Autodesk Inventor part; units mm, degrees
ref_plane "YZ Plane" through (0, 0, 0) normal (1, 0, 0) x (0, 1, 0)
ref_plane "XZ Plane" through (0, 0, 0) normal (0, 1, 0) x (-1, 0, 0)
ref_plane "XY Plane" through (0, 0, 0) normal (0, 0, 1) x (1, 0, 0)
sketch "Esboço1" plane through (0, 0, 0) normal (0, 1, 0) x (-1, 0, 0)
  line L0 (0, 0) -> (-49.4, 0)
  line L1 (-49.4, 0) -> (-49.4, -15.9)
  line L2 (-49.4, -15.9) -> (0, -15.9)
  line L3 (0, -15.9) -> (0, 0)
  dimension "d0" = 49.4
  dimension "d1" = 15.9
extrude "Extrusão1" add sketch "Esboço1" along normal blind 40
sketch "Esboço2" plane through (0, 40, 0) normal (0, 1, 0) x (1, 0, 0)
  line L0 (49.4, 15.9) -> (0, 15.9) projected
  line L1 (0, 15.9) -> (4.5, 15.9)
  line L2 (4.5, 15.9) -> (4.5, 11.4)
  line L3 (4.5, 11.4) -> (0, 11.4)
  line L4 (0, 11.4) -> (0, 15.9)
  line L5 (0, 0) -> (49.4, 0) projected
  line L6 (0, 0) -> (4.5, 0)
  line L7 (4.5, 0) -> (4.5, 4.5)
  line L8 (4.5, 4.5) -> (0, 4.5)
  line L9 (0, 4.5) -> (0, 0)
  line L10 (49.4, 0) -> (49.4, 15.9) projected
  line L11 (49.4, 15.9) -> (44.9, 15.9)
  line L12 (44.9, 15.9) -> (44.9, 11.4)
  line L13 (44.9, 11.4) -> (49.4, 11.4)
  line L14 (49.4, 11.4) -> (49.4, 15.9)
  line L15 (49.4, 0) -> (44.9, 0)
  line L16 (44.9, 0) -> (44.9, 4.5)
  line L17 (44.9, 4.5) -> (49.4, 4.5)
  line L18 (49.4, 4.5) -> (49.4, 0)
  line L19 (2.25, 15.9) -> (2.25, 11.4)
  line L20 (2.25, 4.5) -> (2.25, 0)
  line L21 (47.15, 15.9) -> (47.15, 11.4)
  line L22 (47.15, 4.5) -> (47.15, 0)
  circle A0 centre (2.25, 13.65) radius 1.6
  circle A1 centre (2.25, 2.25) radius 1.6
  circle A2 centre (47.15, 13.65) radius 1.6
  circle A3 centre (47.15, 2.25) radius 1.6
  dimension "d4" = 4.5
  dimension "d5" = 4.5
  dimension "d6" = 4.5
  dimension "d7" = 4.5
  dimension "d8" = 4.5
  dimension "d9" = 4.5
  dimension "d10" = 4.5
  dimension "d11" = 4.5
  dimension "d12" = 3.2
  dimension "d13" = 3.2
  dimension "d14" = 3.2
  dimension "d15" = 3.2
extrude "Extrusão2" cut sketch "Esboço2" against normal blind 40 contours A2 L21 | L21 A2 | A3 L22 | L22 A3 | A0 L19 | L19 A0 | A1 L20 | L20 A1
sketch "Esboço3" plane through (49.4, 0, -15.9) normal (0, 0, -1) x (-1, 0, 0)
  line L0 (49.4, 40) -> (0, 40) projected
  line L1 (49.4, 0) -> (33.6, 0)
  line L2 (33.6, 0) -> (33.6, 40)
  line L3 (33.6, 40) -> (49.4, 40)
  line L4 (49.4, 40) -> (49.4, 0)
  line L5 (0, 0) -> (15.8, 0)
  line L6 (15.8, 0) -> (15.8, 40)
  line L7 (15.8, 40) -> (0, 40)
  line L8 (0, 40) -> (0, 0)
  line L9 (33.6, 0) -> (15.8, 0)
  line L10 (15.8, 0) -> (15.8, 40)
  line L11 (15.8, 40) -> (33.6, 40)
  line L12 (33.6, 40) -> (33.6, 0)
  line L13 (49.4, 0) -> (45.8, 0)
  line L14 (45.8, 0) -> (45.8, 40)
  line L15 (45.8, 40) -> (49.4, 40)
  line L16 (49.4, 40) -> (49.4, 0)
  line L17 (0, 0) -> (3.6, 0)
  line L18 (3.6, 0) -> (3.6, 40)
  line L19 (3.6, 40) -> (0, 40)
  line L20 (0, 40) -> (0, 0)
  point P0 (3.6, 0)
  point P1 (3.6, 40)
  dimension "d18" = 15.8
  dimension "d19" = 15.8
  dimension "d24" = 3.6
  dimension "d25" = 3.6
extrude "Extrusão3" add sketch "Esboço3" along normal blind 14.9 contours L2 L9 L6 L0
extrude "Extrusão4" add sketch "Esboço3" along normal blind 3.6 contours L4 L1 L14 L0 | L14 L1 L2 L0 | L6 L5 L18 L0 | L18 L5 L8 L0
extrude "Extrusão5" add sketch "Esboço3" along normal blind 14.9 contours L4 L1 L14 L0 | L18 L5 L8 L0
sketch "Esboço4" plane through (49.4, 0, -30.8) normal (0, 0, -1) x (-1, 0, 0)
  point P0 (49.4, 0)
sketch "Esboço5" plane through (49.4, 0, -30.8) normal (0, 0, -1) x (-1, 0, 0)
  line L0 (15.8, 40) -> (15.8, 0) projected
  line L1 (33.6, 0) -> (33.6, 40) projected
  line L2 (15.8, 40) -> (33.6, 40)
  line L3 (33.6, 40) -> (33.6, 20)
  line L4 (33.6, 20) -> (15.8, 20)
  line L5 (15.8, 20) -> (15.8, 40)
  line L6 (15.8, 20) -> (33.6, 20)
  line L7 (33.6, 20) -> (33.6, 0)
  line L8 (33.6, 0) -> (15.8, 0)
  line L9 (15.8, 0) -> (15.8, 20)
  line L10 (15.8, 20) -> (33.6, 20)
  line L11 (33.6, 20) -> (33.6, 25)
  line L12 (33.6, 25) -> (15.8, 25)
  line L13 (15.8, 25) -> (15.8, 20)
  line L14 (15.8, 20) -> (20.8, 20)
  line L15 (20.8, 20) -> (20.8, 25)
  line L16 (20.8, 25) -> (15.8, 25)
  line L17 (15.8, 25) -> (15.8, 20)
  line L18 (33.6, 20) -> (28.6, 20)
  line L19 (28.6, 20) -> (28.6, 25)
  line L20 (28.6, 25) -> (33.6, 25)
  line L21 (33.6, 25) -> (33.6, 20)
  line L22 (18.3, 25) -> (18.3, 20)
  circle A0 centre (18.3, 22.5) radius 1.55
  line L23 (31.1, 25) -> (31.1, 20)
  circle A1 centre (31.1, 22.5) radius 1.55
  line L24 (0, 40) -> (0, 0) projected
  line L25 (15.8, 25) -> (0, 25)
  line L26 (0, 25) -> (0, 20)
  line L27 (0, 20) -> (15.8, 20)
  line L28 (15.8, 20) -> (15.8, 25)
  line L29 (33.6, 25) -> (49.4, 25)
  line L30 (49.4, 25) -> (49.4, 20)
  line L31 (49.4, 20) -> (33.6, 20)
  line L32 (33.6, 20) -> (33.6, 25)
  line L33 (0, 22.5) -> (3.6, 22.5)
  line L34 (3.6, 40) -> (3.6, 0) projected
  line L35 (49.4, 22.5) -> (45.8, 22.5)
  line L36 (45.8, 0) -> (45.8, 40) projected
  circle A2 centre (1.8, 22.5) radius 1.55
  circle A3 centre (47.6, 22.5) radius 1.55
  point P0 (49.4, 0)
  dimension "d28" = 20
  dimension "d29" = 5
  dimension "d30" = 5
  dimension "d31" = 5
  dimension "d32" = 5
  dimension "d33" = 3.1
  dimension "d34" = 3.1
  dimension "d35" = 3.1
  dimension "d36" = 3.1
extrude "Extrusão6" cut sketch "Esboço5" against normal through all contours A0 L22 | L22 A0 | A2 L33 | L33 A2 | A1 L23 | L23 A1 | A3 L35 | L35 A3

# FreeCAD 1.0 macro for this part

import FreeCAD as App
import Part
import Sketcher
Q = App.Units.Quantity


def add_polygon(sketch, points):
    """Adds a closed chain of lines whose ends are joined by coincident constraints."""
    first, n = sketch.GeometryCount, len(points)
    for a, b in zip(points, points[1:] + points[:1]):
        sketch.addGeometry(Part.LineSegment(App.Vector(*a, 0), App.Vector(*b, 0)), False)
    for i in range(n):
        sketch.addConstraint(Sketcher.Constraint("Coincident", first + i, 2, first + (i + 1) % n, 1))

doc = App.newDocument("Part")
body = doc.addObject("PartDesign::Body", "Body")

sketch1 = body.newObject("Sketcher::SketchObject", "Sketch")
sketch1.AttachmentSupport = (doc.getObject("XZ_Plane"), [""])
sketch1.MapMode = "FlatFace"
add_polygon(sketch1, [(0, -16), (0, 0), (49, 0), (49, -16)])
sketch1.addConstraint([
    Sketcher.Constraint("Vertical", 0),
    Sketcher.Constraint("Horizontal", 1),
    Sketcher.Constraint("Vertical", 2),
    Sketcher.Constraint("Horizontal", 3),
    Sketcher.Constraint("Coincident", 0, 2, -1, 1),
    Sketcher.Constraint("DistanceX", 1, 1, 1, 2, Q("49.4 mm")),
    Sketcher.Constraint("DistanceY", 0, 1, 0, 2, Q("15.9 mm")),
])
pad1 = body.newObject("PartDesign::Pad", "Pad")
pad1.Profile = sketch1
pad1.Length = 40
pad1.Reversed = True

sketch2 = body.newObject("Sketcher::SketchObject", "Sketch001")
sketch2.AttachmentSupport = (doc.getObject("XZ_Plane"), [""])
sketch2.MapMode = "FlatFace"
sketch2.AttachmentOffset = App.Placement(App.Vector(0, 0, -40), App.Rotation())
sketch2.addGeometry([
    Part.Circle(App.Vector(47.1, -13.7, 0), App.Vector(0, 0, 1), 1.6),
    Part.Circle(App.Vector(47.1, -2.2, 0), App.Vector(0, 0, 1), 1.6),
    Part.Circle(App.Vector(2.2, -13.7, 0), App.Vector(0, 0, 1), 1.6),
    Part.Circle(App.Vector(2.2, -2.2, 0), App.Vector(0, 0, 1), 1.6),
], False)
sketch2.addConstraint([
    Sketcher.Constraint("Equal", 0, 1),
    Sketcher.Constraint("Equal", 1, 2),
    Sketcher.Constraint("Equal", 2, 3),
    Sketcher.Constraint("Horizontal", 0, 3, 2, 3),
    Sketcher.Constraint("Horizontal", 1, 3, 3, 3),
    Sketcher.Constraint("Vertical", 0, 3, 1, 3),
    Sketcher.Constraint("Vertical", 2, 3, 3, 3),
    Sketcher.Constraint("Diameter", 0, Q("3.2 mm")),
    Sketcher.Constraint("DistanceY", 0, 3, 1, 3, Q("11.4 mm")),
    Sketcher.Constraint("DistanceX", 2, 3, 0, 3, Q("44.9 mm")),
    Sketcher.Constraint("DistanceX", -1, 1, 0, 3, Q("47.15 mm")),
    Sketcher.Constraint("DistanceY", 0, 3, -1, 1, Q("13.65 mm")),
])
pocket1 = body.newObject("PartDesign::Pocket", "Pocket")
pocket1.Profile = sketch2
pocket1.Length = 40
pocket1.Reversed = True

sketch3 = body.newObject("Sketcher::SketchObject", "Sketch002")
sketch3.AttachmentSupport = (doc.getObject("XY_Plane"), [""])
sketch3.MapMode = "FlatFace"
sketch3.AttachmentOffset = App.Placement(App.Vector(0, 0, -15.9), App.Rotation())
add_polygon(sketch3, [(16, 0), (16, 40), (34, 40), (34, 0)])
sketch3.addConstraint([
    Sketcher.Constraint("Vertical", 0),
    Sketcher.Constraint("Horizontal", 1),
    Sketcher.Constraint("Vertical", 2),
    Sketcher.Constraint("Horizontal", 3),
    Sketcher.Constraint("PointOnObject", 2, 2, -1),
    Sketcher.Constraint("DistanceX", -1, 1, 0, 2, Q("15.8 mm")),
    Sketcher.Constraint("DistanceY", 0, 1, 0, 2, Q("40 mm")),
    Sketcher.Constraint("DistanceX", 1, 1, 1, 2, Q("17.8 mm")),
])
pad2 = body.newObject("PartDesign::Pad", "Pad001")
pad2.Profile = sketch3
pad2.Length = 14.9
pad2.Reversed = True

sketch4 = body.newObject("Sketcher::SketchObject", "Sketch003")
sketch4.AttachmentSupport = (doc.getObject("XY_Plane"), [""])
sketch4.MapMode = "FlatFace"
sketch4.AttachmentOffset = App.Placement(App.Vector(0, 0, -15.9), App.Rotation())
add_polygon(sketch4, [(0, 0), (0, 40), (16, 40), (16, 0)])
add_polygon(sketch4, [(34, 0), (34, 40), (49, 40), (49, 0)])
sketch4.addConstraint([
    Sketcher.Constraint("Vertical", 0),
    Sketcher.Constraint("Horizontal", 1),
    Sketcher.Constraint("Vertical", 2),
    Sketcher.Constraint("Horizontal", 3),
    Sketcher.Constraint("Vertical", 4),
    Sketcher.Constraint("Horizontal", 5),
    Sketcher.Constraint("Vertical", 6),
    Sketcher.Constraint("Horizontal", 7),
    Sketcher.Constraint("Coincident", 3, 2, -1, 1),
    Sketcher.Constraint("PointOnObject", 6, 2, -1),
    Sketcher.Constraint("Horizontal", 1, 2, 4, 2),
    Sketcher.Constraint("Equal", 3, 5),
    Sketcher.Constraint("DistanceX", 1, 1, 1, 2, Q("15.8 mm")),
    Sketcher.Constraint("DistanceY", 0, 1, 0, 2, Q("40 mm")),
    Sketcher.Constraint("DistanceX", -1, 1, 4, 2, Q("33.6 mm")),
])
pad3 = body.newObject("PartDesign::Pad", "Pad002")
pad3.Profile = sketch4
pad3.Length = 3.6
pad3.Reversed = True

sketch5 = body.newObject("Sketcher::SketchObject", "Sketch004")
sketch5.AttachmentSupport = (doc.getObject("XY_Plane"), [""])
sketch5.MapMode = "FlatFace"
sketch5.AttachmentOffset = App.Placement(App.Vector(0, 0, -15.9), App.Rotation())
add_polygon(sketch5, [(0, 0), (0, 40), (3.6, 40), (3.6, 0)])
add_polygon(sketch5, [(45.8, 0), (45.8, 40), (49.4, 40), (49.4, 0)])
sketch5.addConstraint([
    Sketcher.Constraint("Vertical", 0),
    Sketcher.Constraint("Horizontal", 1),
    Sketcher.Constraint("Vertical", 2),
    Sketcher.Constraint("Horizontal", 3),
    Sketcher.Constraint("Vertical", 4),
    Sketcher.Constraint("Horizontal", 5),
    Sketcher.Constraint("Vertical", 6),
    Sketcher.Constraint("Horizontal", 7),
    Sketcher.Constraint("Coincident", 3, 2, -1, 1),
    Sketcher.Constraint("PointOnObject", 6, 2, -1),
    Sketcher.Constraint("Horizontal", 1, 2, 4, 2),
    Sketcher.Constraint("Equal", 3, 5),
    Sketcher.Constraint("DistanceX", 1, 1, 1, 2, Q("3.6 mm")),
    Sketcher.Constraint("DistanceY", 0, 1, 0, 2, Q("40 mm")),
    Sketcher.Constraint("DistanceX", -1, 1, 4, 2, Q("45.8 mm")),
])
pad4 = body.newObject("PartDesign::Pad", "Pad003")
pad4.Profile = sketch5
pad4.Length = 14.9
pad4.Reversed = True

sketch6 = body.newObject("Sketcher::SketchObject", "Sketch005")
sketch6.AttachmentSupport = (doc.getObject("XY_Plane"), [""])
sketch6.MapMode = "FlatFace"
sketch6.AttachmentOffset = App.Placement(App.Vector(0, 0, -30.8), App.Rotation())
sketch6.addGeometry([
    Part.Circle(App.Vector(31.1, 22.5, 0), App.Vector(0, 0, 1), 1.6),
    Part.Circle(App.Vector(47.6, 22.5, 0), App.Vector(0, 0, 1), 1.6),
    Part.Circle(App.Vector(18.3, 22.5, 0), App.Vector(0, 0, 1), 1.6),
    Part.Circle(App.Vector(1.8, 22.5, 0), App.Vector(0, 0, 1), 1.6),
], False)
sketch6.addConstraint([
    Sketcher.Constraint("Equal", 0, 1),
    Sketcher.Constraint("Equal", 1, 2),
    Sketcher.Constraint("Equal", 2, 3),
    Sketcher.Constraint("Horizontal", 0, 3, 1, 3),
    Sketcher.Constraint("Horizontal", 1, 3, 2, 3),
    Sketcher.Constraint("Horizontal", 2, 3, 3, 3),
    Sketcher.Constraint("Diameter", 0, Q("3.1 mm")),
    Sketcher.Constraint("DistanceX", -1, 1, 0, 3, Q("31.1 mm")),
    Sketcher.Constraint("DistanceY", -1, 1, 0, 3, Q("22.5 mm")),
    Sketcher.Constraint("DistanceX", -1, 1, 1, 3, Q("47.6 mm")),
    Sketcher.Constraint("DistanceX", -1, 1, 2, 3, Q("18.3 mm")),
    Sketcher.Constraint("DistanceX", -1, 1, 3, 3, Q("1.8 mm")),
])
pocket2 = body.newObject("PartDesign::Pocket", "Pocket001")
pocket2.Profile = sketch6
pocket2.Type = "ThroughAll"
pocket2.Reversed = True

doc.recompute()
